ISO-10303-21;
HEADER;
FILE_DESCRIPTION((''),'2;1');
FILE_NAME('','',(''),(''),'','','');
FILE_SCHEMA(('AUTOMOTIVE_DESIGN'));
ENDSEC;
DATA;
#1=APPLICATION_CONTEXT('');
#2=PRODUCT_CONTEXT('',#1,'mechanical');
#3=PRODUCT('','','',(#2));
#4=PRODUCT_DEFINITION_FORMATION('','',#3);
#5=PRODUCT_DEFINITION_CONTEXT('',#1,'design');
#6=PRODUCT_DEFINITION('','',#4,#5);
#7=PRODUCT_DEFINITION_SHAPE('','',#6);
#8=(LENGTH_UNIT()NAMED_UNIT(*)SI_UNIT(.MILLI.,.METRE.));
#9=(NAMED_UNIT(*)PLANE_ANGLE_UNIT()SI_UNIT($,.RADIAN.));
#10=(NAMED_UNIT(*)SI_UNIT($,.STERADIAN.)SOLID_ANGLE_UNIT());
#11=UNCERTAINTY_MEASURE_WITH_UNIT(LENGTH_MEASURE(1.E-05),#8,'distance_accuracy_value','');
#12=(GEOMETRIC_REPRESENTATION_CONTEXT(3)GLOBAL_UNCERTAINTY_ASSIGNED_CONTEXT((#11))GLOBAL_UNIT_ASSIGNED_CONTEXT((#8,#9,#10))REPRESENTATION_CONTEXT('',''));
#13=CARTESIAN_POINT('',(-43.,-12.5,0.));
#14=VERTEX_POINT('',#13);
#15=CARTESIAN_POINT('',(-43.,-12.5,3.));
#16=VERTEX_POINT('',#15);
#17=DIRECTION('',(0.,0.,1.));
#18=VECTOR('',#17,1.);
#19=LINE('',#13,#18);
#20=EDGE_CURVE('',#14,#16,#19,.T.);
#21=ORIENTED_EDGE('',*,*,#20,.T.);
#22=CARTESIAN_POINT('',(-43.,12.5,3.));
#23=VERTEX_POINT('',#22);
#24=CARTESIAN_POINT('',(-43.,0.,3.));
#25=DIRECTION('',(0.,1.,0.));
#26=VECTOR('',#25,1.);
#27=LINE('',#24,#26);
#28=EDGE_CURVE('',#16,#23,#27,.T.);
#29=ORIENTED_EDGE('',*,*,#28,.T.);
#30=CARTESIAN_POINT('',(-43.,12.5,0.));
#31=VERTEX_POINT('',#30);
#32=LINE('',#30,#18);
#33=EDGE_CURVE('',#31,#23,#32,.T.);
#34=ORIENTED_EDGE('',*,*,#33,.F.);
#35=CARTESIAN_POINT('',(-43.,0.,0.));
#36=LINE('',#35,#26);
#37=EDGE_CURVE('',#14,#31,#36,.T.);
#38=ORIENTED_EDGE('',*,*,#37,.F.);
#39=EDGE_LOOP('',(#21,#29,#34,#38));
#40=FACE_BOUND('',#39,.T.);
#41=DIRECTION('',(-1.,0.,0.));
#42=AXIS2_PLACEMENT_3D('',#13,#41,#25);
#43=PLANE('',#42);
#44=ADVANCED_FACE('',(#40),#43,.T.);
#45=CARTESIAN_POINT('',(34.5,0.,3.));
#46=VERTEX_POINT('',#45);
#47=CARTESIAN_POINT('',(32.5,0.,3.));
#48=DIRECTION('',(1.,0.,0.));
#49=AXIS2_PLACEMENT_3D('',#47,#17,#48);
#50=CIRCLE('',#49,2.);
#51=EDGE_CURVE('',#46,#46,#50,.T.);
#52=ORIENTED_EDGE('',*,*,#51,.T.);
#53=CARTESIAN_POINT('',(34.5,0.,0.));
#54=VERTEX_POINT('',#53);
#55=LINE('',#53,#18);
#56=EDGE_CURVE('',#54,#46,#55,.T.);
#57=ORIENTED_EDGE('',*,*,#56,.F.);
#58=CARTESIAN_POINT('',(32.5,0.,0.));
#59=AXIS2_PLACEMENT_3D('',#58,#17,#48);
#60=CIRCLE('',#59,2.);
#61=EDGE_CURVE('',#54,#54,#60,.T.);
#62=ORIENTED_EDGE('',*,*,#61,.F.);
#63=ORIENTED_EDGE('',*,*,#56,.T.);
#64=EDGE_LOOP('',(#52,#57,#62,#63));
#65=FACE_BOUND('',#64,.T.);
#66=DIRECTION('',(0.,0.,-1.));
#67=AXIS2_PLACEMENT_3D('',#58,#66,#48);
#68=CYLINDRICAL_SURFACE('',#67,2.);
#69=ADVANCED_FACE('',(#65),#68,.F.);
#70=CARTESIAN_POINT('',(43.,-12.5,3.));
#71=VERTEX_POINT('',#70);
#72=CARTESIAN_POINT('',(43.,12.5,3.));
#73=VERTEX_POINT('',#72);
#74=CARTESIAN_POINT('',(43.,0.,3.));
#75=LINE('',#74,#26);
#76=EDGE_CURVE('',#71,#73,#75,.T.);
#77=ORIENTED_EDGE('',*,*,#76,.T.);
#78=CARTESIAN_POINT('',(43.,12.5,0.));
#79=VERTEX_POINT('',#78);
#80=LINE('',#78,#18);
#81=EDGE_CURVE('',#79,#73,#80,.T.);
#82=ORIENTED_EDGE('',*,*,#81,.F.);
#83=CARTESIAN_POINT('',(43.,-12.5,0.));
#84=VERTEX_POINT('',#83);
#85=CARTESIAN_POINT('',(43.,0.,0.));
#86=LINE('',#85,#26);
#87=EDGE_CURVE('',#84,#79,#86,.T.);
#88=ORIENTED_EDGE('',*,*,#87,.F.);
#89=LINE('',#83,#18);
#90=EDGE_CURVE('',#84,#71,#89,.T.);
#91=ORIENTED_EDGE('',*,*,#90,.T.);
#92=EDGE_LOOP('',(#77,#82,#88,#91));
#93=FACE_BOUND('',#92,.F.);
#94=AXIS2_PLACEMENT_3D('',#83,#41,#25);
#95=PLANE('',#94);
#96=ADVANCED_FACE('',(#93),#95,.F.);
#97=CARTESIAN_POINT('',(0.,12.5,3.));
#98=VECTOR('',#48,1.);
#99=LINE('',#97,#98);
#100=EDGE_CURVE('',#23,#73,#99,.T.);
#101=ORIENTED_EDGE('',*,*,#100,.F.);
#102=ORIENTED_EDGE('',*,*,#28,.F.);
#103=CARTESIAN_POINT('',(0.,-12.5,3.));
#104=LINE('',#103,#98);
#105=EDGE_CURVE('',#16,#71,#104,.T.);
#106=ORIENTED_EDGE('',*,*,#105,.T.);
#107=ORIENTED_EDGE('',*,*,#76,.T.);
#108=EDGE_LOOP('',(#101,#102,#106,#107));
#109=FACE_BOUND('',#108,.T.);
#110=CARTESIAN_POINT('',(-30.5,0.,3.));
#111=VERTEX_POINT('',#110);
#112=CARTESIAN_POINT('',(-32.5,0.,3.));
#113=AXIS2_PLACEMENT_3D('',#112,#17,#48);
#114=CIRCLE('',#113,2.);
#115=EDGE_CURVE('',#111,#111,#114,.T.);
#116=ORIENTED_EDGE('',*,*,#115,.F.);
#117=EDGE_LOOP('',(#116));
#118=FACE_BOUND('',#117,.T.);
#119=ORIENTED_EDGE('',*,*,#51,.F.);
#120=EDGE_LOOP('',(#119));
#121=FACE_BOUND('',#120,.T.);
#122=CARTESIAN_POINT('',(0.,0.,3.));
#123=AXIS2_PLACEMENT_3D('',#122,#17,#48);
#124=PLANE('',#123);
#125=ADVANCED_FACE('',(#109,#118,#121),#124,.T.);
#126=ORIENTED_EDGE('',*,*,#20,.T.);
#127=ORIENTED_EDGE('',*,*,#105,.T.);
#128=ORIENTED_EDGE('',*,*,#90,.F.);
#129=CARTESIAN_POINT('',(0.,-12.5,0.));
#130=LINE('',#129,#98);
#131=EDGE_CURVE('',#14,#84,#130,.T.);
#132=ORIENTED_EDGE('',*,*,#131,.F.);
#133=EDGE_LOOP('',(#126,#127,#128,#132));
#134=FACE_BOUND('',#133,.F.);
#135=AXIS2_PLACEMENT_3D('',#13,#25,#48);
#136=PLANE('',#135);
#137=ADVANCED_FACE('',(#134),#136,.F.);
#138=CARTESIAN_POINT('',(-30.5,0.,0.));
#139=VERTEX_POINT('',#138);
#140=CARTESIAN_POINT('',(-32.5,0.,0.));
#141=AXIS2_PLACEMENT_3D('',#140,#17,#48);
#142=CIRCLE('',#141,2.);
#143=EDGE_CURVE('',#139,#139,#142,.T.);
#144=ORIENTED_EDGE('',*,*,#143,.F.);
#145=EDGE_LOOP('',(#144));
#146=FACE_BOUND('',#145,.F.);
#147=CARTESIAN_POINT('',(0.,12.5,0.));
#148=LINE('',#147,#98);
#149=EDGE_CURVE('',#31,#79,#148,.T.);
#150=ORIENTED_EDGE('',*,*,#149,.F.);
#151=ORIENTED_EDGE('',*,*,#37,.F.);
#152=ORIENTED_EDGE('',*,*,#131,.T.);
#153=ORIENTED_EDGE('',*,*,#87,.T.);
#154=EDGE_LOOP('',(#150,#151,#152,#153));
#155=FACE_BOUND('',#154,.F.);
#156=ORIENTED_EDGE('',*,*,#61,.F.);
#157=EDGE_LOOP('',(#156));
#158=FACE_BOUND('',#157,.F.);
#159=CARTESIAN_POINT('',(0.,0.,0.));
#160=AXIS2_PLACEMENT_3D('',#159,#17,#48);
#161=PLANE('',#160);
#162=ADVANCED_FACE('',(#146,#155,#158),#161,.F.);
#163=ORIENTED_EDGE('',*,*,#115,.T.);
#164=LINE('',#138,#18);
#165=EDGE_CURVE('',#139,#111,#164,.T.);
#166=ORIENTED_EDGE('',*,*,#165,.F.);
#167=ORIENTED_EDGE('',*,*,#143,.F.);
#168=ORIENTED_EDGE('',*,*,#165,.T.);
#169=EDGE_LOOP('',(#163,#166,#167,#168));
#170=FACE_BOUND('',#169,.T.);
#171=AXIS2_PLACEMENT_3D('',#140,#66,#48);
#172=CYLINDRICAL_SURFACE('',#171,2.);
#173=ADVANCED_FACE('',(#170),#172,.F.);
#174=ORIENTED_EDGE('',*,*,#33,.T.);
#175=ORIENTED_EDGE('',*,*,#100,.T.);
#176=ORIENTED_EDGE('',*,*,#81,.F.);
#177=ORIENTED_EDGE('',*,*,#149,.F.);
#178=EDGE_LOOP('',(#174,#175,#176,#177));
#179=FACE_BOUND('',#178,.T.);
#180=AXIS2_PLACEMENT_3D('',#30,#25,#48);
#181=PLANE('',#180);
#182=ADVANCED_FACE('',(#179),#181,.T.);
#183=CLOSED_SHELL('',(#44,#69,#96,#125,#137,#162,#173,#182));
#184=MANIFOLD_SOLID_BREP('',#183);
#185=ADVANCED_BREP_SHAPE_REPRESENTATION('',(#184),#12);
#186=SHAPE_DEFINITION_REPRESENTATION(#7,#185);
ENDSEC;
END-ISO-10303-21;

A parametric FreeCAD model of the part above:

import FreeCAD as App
import Part
import Sketcher
from FreeCAD import Vector


def add_polygon(sketch, points):
    """Adds a closed chain of lines whose ends are joined by coincident constraints."""
    first, n = sketch.GeometryCount, len(points)
    for a, b in zip(points, points[1:] + points[:1]):
        sketch.addGeometry(Part.LineSegment(App.Vector(*a, 0), App.Vector(*b, 0)), False)
    for i in range(n):
        sketch.addConstraint(Sketcher.Constraint("Coincident", first + i, 2, first + (i + 1) % n, 1))

doc = App.newDocument("Part")
body = doc.addObject("PartDesign::Body", "Body")

# Sketch on XY plane
sketch1 = body.newObject("Sketcher::SketchObject", "Sketch")
sketch1.AttachmentSupport = (doc.getObject("XY_Plane"), [""])
sketch1.MapMode = "FlatFace"
add_polygon(sketch1, [(-43, 12.5), (-43, -12.5), (43, -12.5), (43, 12.5)])  # lines 0-3
sketch1.addGeometry(Part.Circle(Vector(-32.5, 0, 0), Vector(0, 0, 1), 2), False)  # 4
sketch1.addGeometry(Part.Circle(Vector(32.5, 0, 0), Vector(0, 0, 1), 2), False)  # 5
sketch1.addConstraint([
    Sketcher.Constraint("Vertical", 0),
    Sketcher.Constraint("Horizontal", 1),
    Sketcher.Constraint("Vertical", 2),
    Sketcher.Constraint("Horizontal", 3),
    Sketcher.Constraint("Equal", 4, 5),
    Sketcher.Constraint("Symmetric", 4, 3, 5, 3, -1, 1),
    Sketcher.Constraint("Symmetric", 0, 2, 2, 2, -1, 1),
    Sketcher.Constraint("PointOnObject", 4, 3, -1),
    Sketcher.Constraint("Diameter", 4, 4.0),
    Sketcher.Constraint("DistanceX", 1, 1, 1, 2, 86.0),
    Sketcher.Constraint("DistanceY", 0, 2, 0, 1, 25.0),
    Sketcher.Constraint("DistanceX", 4, 3, 5, 3, 65.0),
])
pad1 = body.newObject("PartDesign::Pad", "Pad")
pad1.Profile = sketch1
pad1.Length = 3

doc.recompute()
